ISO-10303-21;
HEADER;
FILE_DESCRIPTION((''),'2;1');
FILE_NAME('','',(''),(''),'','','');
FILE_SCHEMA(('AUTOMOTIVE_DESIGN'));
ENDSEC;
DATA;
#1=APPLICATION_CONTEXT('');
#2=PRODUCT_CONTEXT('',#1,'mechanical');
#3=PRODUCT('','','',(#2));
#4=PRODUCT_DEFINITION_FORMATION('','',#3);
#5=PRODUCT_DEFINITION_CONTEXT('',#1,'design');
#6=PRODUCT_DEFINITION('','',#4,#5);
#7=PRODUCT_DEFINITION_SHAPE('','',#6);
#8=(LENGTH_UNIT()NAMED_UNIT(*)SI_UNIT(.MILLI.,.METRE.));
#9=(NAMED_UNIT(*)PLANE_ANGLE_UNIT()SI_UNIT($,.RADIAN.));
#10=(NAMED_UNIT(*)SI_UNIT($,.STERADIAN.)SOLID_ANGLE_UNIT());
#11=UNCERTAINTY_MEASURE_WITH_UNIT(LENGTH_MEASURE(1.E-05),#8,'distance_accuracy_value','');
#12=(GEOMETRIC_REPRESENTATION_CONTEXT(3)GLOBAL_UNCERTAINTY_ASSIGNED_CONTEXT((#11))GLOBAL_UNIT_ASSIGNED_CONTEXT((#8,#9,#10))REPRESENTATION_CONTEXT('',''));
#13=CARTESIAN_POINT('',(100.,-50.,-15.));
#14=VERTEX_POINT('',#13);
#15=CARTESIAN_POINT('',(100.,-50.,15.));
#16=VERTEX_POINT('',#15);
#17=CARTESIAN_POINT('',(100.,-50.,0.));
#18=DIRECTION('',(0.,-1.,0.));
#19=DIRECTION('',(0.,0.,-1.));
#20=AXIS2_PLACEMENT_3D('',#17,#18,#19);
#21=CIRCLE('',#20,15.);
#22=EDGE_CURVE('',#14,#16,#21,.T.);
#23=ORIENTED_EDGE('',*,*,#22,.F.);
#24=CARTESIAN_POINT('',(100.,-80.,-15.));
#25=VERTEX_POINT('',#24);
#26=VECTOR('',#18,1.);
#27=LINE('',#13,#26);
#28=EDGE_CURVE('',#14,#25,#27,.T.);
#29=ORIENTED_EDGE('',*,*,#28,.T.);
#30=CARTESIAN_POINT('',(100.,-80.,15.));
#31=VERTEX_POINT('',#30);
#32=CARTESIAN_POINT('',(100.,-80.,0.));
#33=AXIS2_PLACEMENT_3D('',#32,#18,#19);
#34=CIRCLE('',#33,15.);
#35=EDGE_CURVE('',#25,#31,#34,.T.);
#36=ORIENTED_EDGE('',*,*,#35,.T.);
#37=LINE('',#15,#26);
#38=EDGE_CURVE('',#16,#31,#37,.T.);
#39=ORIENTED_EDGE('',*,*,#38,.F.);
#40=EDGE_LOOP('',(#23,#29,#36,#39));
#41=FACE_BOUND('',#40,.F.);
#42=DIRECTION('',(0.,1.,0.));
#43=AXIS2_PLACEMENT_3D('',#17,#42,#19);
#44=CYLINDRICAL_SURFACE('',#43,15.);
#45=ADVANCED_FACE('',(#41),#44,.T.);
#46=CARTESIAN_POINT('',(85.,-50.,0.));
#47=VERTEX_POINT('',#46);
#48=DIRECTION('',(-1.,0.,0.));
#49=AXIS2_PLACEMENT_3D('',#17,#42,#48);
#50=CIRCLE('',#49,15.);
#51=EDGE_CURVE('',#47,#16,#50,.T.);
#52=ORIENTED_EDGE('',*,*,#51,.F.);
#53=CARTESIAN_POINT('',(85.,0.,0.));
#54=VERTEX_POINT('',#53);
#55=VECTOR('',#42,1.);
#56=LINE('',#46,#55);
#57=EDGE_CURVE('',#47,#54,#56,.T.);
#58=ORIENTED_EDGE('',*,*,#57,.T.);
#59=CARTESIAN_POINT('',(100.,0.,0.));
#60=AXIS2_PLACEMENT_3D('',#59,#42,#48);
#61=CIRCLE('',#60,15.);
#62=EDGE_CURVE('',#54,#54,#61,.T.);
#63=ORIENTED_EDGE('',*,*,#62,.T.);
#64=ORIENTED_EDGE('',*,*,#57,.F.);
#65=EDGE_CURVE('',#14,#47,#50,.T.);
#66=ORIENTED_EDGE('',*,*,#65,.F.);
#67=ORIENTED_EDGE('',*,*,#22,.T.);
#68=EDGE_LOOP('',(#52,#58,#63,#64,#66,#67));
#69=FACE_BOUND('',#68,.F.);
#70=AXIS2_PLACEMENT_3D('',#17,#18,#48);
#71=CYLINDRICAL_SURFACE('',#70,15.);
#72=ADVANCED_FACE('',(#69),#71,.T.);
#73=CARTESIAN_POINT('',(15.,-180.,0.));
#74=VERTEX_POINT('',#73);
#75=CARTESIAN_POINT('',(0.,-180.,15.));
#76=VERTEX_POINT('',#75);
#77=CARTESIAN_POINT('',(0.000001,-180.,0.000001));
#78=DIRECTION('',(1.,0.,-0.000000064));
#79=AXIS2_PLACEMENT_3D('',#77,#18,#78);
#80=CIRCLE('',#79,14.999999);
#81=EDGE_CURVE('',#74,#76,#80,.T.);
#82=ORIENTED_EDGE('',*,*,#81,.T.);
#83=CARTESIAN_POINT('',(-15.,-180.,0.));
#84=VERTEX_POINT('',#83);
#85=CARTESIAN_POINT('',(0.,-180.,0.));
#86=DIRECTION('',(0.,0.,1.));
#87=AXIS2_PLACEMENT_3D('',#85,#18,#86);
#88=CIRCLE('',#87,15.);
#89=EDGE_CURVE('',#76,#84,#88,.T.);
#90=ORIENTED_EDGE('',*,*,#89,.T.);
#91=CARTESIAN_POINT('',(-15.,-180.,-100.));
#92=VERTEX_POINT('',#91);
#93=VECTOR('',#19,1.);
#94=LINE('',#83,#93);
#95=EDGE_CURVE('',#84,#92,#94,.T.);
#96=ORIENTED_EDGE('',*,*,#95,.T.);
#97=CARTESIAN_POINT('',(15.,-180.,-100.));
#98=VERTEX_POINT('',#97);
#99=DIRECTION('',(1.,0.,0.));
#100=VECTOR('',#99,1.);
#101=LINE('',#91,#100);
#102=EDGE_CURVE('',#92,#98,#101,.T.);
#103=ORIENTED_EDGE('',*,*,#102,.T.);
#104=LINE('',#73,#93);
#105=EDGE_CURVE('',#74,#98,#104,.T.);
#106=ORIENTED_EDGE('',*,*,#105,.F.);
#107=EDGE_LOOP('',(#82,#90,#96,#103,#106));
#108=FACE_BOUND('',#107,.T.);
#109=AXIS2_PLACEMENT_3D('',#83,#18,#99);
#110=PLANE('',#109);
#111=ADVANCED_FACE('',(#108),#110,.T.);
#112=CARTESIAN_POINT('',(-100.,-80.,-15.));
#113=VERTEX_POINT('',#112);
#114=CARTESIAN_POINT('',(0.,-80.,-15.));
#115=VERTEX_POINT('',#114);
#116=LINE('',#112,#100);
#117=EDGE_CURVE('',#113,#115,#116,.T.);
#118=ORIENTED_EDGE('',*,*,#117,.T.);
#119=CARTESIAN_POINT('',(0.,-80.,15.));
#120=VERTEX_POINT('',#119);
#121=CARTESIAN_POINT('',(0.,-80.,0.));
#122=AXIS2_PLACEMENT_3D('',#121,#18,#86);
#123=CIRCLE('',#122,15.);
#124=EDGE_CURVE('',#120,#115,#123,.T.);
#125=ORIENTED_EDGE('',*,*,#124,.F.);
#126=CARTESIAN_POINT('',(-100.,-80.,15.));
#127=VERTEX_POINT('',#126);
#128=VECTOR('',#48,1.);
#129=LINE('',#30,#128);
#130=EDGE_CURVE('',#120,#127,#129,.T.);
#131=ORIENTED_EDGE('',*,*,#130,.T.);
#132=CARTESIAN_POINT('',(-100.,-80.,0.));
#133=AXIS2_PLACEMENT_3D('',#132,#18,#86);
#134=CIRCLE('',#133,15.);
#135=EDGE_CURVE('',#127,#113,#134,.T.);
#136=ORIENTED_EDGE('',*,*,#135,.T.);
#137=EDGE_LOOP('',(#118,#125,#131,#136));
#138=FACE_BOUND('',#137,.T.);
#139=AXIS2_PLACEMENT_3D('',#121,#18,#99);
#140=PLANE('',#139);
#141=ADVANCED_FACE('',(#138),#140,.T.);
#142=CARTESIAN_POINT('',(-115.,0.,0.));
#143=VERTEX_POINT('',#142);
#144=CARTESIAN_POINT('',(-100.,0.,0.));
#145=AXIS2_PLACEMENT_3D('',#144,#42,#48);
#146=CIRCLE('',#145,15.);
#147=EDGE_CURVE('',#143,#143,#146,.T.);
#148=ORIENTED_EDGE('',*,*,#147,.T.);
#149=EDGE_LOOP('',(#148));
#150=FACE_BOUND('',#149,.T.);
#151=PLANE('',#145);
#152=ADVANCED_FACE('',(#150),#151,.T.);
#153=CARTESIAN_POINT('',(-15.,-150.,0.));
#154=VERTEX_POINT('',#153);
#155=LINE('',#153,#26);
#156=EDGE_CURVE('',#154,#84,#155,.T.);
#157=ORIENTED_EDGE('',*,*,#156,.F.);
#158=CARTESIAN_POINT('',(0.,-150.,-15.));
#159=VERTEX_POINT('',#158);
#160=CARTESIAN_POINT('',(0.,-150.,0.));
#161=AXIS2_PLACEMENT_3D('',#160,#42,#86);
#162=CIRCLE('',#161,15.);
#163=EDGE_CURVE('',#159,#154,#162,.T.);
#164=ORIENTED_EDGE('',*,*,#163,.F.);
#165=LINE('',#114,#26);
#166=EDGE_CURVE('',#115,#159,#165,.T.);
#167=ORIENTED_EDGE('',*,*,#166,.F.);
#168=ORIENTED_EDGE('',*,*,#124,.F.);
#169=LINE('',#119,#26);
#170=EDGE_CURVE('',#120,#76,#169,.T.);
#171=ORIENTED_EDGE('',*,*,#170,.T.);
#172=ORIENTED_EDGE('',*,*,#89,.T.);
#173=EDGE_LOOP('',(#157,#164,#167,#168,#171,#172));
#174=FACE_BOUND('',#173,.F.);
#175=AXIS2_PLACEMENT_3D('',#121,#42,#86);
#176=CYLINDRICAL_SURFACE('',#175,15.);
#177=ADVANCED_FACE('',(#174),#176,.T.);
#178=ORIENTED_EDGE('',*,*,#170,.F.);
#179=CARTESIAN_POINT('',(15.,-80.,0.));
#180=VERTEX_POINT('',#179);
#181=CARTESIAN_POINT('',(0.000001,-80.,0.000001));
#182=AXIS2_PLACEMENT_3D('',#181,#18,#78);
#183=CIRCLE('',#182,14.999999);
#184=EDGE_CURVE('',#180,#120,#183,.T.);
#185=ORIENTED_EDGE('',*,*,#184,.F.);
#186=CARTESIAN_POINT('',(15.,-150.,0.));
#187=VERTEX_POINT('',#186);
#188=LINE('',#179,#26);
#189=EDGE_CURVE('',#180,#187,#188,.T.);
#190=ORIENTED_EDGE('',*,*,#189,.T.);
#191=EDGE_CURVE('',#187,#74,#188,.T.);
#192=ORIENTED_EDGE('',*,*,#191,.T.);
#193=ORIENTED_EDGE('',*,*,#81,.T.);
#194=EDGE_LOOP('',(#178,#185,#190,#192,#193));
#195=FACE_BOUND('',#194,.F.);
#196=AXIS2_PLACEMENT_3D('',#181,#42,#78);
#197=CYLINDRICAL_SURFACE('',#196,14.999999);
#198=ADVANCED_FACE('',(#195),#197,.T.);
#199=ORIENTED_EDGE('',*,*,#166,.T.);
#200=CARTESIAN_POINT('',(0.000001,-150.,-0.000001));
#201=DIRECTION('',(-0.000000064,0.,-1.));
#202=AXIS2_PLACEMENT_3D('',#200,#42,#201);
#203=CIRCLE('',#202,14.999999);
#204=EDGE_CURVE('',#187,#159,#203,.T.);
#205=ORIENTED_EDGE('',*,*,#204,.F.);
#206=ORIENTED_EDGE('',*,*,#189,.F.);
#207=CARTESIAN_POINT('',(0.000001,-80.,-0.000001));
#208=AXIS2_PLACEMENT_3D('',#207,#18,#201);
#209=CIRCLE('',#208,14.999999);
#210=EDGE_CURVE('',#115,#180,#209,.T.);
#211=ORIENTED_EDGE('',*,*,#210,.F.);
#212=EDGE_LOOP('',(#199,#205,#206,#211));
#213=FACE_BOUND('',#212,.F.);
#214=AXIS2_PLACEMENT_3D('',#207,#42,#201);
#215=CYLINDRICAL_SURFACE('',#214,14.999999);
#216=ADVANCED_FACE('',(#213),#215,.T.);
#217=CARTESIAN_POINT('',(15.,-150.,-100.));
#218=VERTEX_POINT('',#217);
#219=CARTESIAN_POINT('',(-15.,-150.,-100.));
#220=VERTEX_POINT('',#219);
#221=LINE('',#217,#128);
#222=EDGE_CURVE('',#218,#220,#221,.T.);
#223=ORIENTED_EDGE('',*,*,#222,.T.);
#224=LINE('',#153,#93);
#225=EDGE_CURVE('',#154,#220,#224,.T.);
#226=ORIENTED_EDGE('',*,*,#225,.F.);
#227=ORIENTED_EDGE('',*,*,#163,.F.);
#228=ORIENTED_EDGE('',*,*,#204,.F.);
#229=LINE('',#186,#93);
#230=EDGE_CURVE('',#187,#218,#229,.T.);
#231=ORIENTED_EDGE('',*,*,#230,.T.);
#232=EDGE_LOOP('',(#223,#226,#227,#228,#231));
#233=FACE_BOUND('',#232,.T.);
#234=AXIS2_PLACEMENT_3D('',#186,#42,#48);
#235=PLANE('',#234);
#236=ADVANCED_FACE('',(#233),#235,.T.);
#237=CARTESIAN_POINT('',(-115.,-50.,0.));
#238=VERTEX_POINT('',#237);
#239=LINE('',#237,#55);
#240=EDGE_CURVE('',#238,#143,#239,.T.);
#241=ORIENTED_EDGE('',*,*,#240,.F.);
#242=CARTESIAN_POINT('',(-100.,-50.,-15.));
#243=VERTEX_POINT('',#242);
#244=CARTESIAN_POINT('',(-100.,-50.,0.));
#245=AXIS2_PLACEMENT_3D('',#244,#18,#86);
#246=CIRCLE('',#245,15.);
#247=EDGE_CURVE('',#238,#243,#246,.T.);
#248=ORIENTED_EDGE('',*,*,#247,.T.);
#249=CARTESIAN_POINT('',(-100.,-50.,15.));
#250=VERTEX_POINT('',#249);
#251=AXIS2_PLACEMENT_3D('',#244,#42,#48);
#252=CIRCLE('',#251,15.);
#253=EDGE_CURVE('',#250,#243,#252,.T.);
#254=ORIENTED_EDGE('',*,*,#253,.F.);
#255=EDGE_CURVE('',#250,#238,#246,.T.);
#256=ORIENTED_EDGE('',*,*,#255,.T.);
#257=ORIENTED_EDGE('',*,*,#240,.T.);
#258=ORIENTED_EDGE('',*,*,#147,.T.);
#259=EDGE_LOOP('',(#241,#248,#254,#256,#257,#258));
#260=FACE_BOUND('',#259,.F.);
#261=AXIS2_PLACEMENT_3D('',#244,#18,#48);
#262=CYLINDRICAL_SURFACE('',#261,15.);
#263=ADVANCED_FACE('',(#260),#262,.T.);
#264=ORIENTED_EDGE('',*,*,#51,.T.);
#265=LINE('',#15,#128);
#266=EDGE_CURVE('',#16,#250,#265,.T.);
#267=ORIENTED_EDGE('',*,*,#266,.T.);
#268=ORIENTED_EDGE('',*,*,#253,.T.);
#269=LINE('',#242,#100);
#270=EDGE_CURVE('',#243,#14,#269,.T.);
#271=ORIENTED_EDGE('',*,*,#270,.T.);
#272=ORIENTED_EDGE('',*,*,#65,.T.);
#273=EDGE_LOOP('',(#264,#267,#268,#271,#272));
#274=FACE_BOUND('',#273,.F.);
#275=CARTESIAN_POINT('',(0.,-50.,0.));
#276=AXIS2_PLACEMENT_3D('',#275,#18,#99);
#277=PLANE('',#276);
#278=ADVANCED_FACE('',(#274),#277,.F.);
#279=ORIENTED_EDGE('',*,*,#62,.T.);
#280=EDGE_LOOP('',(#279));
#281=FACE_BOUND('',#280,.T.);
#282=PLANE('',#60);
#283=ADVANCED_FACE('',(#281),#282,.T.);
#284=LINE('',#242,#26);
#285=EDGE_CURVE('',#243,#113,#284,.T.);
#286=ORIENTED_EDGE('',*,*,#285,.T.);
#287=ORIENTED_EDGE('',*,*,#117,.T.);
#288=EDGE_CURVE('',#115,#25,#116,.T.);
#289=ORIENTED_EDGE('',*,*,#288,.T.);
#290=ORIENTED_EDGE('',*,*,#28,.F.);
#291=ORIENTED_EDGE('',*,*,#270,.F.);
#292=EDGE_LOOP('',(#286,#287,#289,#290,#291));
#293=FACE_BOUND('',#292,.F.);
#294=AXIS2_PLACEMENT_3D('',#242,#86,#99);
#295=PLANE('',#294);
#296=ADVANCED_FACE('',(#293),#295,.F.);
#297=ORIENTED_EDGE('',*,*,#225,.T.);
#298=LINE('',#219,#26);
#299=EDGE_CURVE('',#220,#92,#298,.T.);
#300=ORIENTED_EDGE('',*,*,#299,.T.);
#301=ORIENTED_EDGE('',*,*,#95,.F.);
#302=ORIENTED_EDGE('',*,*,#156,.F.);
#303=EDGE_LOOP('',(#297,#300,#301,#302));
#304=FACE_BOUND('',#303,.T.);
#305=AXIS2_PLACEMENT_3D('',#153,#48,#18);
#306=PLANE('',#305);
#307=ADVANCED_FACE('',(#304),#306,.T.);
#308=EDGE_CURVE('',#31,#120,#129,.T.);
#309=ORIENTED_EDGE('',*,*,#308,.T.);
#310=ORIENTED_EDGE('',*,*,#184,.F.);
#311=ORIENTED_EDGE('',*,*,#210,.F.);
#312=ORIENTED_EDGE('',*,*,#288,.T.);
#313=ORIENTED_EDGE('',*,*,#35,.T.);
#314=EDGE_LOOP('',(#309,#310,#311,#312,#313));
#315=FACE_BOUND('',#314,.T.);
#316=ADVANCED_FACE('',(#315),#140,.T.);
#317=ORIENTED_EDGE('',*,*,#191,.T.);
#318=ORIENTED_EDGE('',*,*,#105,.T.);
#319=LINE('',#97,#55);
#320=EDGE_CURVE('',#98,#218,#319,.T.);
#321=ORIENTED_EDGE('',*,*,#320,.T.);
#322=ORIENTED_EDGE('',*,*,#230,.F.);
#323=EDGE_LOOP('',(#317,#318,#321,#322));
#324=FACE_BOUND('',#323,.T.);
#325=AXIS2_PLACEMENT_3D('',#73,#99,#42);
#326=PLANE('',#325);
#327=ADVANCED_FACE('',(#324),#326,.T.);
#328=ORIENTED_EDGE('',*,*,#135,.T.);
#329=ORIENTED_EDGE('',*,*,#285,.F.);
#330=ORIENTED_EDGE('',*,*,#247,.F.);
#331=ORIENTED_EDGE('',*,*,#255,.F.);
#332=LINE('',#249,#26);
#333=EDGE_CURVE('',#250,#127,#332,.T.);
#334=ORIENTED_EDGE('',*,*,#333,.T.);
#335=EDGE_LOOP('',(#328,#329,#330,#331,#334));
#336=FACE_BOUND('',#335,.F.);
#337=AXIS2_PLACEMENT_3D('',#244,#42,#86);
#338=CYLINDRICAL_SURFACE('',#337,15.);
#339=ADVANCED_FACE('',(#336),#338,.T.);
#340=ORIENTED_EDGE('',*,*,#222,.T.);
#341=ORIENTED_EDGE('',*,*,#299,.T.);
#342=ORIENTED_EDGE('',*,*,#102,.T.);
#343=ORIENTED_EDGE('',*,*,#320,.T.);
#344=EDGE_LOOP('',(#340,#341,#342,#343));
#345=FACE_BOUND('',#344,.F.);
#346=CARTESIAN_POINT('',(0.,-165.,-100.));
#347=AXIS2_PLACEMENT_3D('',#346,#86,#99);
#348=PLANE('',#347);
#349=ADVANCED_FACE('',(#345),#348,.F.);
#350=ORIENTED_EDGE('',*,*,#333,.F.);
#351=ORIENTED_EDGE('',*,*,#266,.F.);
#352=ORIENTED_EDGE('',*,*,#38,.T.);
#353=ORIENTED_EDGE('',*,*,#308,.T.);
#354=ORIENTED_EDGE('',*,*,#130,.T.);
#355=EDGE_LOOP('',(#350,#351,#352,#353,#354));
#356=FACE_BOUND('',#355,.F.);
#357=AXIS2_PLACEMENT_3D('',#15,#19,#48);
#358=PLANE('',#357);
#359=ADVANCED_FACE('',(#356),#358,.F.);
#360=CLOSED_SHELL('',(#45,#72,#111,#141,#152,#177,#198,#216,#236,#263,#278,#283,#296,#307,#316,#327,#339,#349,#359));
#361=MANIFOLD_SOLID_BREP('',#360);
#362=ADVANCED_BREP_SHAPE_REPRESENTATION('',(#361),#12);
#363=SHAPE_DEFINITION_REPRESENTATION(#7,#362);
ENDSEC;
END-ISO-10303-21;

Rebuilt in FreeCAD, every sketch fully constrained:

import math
import FreeCAD as App
import Part
import Sketcher
from FreeCAD import Vector
Q = App.Units.Quantity


def add_polygon(sketch, points):
    """Adds a closed chain of lines whose ends are joined by coincident constraints."""
    first, n = sketch.GeometryCount, len(points)
    for a, b in zip(points, points[1:] + points[:1]):
        sketch.addGeometry(Part.LineSegment(App.Vector(*a, 0), App.Vector(*b, 0)), False)
    for i in range(n):
        sketch.addConstraint(Sketcher.Constraint("Coincident", first + i, 2, first + (i + 1) % n, 1))

doc = App.newDocument("Part")
body = doc.addObject("PartDesign::Body", "Body")

sketch1 = body.newObject("Sketcher::SketchObject", "Sketch")
sketch1.AttachmentSupport = (doc.getObject("XZ_Plane"), [""])
sketch1.MapMode = "FlatFace"
sketch1.AttachmentOffset = App.Placement(Vector(0, 0, 50), App.Rotation())
sketch1.addGeometry(Part.LineSegment(Vector(100, 15, 0), Vector(-100, 15, 0)), False)
sketch1.addGeometry(Part.ArcOfCircle(Part.Circle(Vector(-100, 0, 0), Vector(0, 0, 1), 15), math.radians(90), math.radians(270)), False)
sketch1.addGeometry(Part.LineSegment(Vector(-100, -15, 0), Vector(100, -15, 0)), False)
sketch1.addGeometry(Part.ArcOfCircle(Part.Circle(Vector(100, 0, 0), Vector(0, 0, 1), 15), math.radians(-90), math.radians(90)), False)
sketch1.addConstraint(Sketcher.Constraint("Tangent", 0, 2, 1, 1))
sketch1.addConstraint(Sketcher.Constraint("Tangent", 1, 2, 2, 1))
sketch1.addConstraint(Sketcher.Constraint("Tangent", 2, 2, 3, 1))
sketch1.addConstraint(Sketcher.Constraint("Tangent", 3, 2, 0, 1))
sketch1.addConstraint(Sketcher.Constraint("Horizontal", 0))
sketch1.addConstraint(Sketcher.Constraint("Horizontal", 2))
sketch1.addConstraint(Sketcher.Constraint("Symmetric", 1, 3, 3, 3, -1, 1))
sketch1.addConstraint(Sketcher.Constraint("Radius", 1, Q("15 mm")))
sketch1.addConstraint(Sketcher.Constraint("DistanceX", 0, 2, 0, 1, Q("200 mm")))
pad1 = body.newObject("PartDesign::Pad", "Pad")
pad1.Profile = sketch1
pad1.Length = 30

sketch2 = body.newObject("Sketcher::SketchObject", "Sketch001")
sketch2.AttachmentSupport = (doc.getObject("XZ_Plane"), [""])
sketch2.MapMode = "FlatFace"
sketch2.AttachmentOffset = App.Placement(Vector(0, 0, 80), App.Rotation())
sketch2.addGeometry(Part.ArcOfCircle(Part.Circle(Vector(0.000001, -0.000001, 0), Vector(0, 0, 1), 14.999999), math.radians(-90.000004), math.radians(0.000004)), False)
sketch2.addGeometry(Part.ArcOfCircle(Part.Circle(Vector(0.000001, 0.000001, 0), Vector(0, 0, 1), 14.999999), math.radians(-0.000004), math.radians(90.000004)), False)
sketch2.addGeometry(Part.ArcOfCircle(Part.Circle(Vector(0, 0, 0), Vector(0, 0, 1), 15), math.radians(90), math.radians(270)), False)
sketch2.addConstraint(Sketcher.Constraint("Tangent", 0, 2, 1, 1))
sketch2.addConstraint(Sketcher.Constraint("Tangent", 1, 2, 2, 1))
sketch2.addConstraint(Sketcher.Constraint("Tangent", 2, 2, 0, 1))
sketch2.addConstraint(Sketcher.Constraint("Coincident", 0, 3, -1, 1))
sketch2.addConstraint(Sketcher.Constraint("PointOnObject", 0, 2, -1))
sketch2.addConstraint(Sketcher.Constraint("PointOnObject", 1, 2, -2))
sketch2.addConstraint(Sketcher.Constraint("PointOnObject", 2, 2, -2))
sketch2.addConstraint(Sketcher.Constraint("Radius", 0, Q("14.999999 mm")))
pad2 = body.newObject("PartDesign::Pad", "Pad001")
pad2.Profile = sketch2
pad2.Length = 100

sketch3 = body.newObject("Sketcher::SketchObject", "Sketch002")
sketch3.AttachmentSupport = (doc.getObject("XZ_Plane"), [""])
sketch3.MapMode = "FlatFace"
sketch3.AttachmentOffset = App.Placement(Vector(0, 0, 50), App.Rotation())
sketch3.addGeometry(Part.Circle(Vector(100, 0, 0), Vector(0, 0, 1), 15), False)
sketch3.addGeometry(Part.Circle(Vector(-100, 0, 0), Vector(0, 0, 1), 15), False)
sketch3.addConstraint(Sketcher.Constraint("Equal", 0, 1))
sketch3.addConstraint(Sketcher.Constraint("Symmetric", 0, 3, 1, 3, -1, 1))
sketch3.addConstraint(Sketcher.Constraint("PointOnObject", 0, 3, -1))
sketch3.addConstraint(Sketcher.Constraint("Diameter", 0, Q("30 mm")))
sketch3.addConstraint(Sketcher.Constraint("DistanceX", -1, 1, 0, 3, Q("100 mm")))
pad3 = body.newObject("PartDesign::Pad", "Pad002")
pad3.Profile = sketch3
pad3.Length = 50
pad3.Reversed = True

sketch4 = body.newObject("Sketcher::SketchObject", "Sketch003")
sketch4.AttachmentSupport = (doc.getObject("XY_Plane"), [""])
sketch4.MapMode = "FlatFace"
add_polygon(sketch4, [(-15, -180), (15, -180), (15, -150), (-15, -150)])
sketch4.addConstraint(Sketcher.Constraint("Horizontal", 0))
sketch4.addConstraint(Sketcher.Constraint("Vertical", 1))
sketch4.addConstraint(Sketcher.Constraint("Horizontal", 2))
sketch4.addConstraint(Sketcher.Constraint("Vertical", 3))
sketch4.addConstraint(Sketcher.Constraint("Equal", 2, 1))
sketch4.addConstraint(Sketcher.Constraint("DistanceX", 0, 1, 0, 2, Q("30 mm")))
sketch4.addConstraint(Sketcher.Constraint("DistanceX", -1, 1, 0, 2, Q("15 mm")))
sketch4.addConstraint(Sketcher.Constraint("DistanceY", 0, 2, -1, 1, Q("180 mm")))
pad4 = body.newObject("PartDesign::Pad", "Pad003")
pad4.Profile = sketch4
pad4.Length = 100
pad4.Reversed = True

doc.recompute()
